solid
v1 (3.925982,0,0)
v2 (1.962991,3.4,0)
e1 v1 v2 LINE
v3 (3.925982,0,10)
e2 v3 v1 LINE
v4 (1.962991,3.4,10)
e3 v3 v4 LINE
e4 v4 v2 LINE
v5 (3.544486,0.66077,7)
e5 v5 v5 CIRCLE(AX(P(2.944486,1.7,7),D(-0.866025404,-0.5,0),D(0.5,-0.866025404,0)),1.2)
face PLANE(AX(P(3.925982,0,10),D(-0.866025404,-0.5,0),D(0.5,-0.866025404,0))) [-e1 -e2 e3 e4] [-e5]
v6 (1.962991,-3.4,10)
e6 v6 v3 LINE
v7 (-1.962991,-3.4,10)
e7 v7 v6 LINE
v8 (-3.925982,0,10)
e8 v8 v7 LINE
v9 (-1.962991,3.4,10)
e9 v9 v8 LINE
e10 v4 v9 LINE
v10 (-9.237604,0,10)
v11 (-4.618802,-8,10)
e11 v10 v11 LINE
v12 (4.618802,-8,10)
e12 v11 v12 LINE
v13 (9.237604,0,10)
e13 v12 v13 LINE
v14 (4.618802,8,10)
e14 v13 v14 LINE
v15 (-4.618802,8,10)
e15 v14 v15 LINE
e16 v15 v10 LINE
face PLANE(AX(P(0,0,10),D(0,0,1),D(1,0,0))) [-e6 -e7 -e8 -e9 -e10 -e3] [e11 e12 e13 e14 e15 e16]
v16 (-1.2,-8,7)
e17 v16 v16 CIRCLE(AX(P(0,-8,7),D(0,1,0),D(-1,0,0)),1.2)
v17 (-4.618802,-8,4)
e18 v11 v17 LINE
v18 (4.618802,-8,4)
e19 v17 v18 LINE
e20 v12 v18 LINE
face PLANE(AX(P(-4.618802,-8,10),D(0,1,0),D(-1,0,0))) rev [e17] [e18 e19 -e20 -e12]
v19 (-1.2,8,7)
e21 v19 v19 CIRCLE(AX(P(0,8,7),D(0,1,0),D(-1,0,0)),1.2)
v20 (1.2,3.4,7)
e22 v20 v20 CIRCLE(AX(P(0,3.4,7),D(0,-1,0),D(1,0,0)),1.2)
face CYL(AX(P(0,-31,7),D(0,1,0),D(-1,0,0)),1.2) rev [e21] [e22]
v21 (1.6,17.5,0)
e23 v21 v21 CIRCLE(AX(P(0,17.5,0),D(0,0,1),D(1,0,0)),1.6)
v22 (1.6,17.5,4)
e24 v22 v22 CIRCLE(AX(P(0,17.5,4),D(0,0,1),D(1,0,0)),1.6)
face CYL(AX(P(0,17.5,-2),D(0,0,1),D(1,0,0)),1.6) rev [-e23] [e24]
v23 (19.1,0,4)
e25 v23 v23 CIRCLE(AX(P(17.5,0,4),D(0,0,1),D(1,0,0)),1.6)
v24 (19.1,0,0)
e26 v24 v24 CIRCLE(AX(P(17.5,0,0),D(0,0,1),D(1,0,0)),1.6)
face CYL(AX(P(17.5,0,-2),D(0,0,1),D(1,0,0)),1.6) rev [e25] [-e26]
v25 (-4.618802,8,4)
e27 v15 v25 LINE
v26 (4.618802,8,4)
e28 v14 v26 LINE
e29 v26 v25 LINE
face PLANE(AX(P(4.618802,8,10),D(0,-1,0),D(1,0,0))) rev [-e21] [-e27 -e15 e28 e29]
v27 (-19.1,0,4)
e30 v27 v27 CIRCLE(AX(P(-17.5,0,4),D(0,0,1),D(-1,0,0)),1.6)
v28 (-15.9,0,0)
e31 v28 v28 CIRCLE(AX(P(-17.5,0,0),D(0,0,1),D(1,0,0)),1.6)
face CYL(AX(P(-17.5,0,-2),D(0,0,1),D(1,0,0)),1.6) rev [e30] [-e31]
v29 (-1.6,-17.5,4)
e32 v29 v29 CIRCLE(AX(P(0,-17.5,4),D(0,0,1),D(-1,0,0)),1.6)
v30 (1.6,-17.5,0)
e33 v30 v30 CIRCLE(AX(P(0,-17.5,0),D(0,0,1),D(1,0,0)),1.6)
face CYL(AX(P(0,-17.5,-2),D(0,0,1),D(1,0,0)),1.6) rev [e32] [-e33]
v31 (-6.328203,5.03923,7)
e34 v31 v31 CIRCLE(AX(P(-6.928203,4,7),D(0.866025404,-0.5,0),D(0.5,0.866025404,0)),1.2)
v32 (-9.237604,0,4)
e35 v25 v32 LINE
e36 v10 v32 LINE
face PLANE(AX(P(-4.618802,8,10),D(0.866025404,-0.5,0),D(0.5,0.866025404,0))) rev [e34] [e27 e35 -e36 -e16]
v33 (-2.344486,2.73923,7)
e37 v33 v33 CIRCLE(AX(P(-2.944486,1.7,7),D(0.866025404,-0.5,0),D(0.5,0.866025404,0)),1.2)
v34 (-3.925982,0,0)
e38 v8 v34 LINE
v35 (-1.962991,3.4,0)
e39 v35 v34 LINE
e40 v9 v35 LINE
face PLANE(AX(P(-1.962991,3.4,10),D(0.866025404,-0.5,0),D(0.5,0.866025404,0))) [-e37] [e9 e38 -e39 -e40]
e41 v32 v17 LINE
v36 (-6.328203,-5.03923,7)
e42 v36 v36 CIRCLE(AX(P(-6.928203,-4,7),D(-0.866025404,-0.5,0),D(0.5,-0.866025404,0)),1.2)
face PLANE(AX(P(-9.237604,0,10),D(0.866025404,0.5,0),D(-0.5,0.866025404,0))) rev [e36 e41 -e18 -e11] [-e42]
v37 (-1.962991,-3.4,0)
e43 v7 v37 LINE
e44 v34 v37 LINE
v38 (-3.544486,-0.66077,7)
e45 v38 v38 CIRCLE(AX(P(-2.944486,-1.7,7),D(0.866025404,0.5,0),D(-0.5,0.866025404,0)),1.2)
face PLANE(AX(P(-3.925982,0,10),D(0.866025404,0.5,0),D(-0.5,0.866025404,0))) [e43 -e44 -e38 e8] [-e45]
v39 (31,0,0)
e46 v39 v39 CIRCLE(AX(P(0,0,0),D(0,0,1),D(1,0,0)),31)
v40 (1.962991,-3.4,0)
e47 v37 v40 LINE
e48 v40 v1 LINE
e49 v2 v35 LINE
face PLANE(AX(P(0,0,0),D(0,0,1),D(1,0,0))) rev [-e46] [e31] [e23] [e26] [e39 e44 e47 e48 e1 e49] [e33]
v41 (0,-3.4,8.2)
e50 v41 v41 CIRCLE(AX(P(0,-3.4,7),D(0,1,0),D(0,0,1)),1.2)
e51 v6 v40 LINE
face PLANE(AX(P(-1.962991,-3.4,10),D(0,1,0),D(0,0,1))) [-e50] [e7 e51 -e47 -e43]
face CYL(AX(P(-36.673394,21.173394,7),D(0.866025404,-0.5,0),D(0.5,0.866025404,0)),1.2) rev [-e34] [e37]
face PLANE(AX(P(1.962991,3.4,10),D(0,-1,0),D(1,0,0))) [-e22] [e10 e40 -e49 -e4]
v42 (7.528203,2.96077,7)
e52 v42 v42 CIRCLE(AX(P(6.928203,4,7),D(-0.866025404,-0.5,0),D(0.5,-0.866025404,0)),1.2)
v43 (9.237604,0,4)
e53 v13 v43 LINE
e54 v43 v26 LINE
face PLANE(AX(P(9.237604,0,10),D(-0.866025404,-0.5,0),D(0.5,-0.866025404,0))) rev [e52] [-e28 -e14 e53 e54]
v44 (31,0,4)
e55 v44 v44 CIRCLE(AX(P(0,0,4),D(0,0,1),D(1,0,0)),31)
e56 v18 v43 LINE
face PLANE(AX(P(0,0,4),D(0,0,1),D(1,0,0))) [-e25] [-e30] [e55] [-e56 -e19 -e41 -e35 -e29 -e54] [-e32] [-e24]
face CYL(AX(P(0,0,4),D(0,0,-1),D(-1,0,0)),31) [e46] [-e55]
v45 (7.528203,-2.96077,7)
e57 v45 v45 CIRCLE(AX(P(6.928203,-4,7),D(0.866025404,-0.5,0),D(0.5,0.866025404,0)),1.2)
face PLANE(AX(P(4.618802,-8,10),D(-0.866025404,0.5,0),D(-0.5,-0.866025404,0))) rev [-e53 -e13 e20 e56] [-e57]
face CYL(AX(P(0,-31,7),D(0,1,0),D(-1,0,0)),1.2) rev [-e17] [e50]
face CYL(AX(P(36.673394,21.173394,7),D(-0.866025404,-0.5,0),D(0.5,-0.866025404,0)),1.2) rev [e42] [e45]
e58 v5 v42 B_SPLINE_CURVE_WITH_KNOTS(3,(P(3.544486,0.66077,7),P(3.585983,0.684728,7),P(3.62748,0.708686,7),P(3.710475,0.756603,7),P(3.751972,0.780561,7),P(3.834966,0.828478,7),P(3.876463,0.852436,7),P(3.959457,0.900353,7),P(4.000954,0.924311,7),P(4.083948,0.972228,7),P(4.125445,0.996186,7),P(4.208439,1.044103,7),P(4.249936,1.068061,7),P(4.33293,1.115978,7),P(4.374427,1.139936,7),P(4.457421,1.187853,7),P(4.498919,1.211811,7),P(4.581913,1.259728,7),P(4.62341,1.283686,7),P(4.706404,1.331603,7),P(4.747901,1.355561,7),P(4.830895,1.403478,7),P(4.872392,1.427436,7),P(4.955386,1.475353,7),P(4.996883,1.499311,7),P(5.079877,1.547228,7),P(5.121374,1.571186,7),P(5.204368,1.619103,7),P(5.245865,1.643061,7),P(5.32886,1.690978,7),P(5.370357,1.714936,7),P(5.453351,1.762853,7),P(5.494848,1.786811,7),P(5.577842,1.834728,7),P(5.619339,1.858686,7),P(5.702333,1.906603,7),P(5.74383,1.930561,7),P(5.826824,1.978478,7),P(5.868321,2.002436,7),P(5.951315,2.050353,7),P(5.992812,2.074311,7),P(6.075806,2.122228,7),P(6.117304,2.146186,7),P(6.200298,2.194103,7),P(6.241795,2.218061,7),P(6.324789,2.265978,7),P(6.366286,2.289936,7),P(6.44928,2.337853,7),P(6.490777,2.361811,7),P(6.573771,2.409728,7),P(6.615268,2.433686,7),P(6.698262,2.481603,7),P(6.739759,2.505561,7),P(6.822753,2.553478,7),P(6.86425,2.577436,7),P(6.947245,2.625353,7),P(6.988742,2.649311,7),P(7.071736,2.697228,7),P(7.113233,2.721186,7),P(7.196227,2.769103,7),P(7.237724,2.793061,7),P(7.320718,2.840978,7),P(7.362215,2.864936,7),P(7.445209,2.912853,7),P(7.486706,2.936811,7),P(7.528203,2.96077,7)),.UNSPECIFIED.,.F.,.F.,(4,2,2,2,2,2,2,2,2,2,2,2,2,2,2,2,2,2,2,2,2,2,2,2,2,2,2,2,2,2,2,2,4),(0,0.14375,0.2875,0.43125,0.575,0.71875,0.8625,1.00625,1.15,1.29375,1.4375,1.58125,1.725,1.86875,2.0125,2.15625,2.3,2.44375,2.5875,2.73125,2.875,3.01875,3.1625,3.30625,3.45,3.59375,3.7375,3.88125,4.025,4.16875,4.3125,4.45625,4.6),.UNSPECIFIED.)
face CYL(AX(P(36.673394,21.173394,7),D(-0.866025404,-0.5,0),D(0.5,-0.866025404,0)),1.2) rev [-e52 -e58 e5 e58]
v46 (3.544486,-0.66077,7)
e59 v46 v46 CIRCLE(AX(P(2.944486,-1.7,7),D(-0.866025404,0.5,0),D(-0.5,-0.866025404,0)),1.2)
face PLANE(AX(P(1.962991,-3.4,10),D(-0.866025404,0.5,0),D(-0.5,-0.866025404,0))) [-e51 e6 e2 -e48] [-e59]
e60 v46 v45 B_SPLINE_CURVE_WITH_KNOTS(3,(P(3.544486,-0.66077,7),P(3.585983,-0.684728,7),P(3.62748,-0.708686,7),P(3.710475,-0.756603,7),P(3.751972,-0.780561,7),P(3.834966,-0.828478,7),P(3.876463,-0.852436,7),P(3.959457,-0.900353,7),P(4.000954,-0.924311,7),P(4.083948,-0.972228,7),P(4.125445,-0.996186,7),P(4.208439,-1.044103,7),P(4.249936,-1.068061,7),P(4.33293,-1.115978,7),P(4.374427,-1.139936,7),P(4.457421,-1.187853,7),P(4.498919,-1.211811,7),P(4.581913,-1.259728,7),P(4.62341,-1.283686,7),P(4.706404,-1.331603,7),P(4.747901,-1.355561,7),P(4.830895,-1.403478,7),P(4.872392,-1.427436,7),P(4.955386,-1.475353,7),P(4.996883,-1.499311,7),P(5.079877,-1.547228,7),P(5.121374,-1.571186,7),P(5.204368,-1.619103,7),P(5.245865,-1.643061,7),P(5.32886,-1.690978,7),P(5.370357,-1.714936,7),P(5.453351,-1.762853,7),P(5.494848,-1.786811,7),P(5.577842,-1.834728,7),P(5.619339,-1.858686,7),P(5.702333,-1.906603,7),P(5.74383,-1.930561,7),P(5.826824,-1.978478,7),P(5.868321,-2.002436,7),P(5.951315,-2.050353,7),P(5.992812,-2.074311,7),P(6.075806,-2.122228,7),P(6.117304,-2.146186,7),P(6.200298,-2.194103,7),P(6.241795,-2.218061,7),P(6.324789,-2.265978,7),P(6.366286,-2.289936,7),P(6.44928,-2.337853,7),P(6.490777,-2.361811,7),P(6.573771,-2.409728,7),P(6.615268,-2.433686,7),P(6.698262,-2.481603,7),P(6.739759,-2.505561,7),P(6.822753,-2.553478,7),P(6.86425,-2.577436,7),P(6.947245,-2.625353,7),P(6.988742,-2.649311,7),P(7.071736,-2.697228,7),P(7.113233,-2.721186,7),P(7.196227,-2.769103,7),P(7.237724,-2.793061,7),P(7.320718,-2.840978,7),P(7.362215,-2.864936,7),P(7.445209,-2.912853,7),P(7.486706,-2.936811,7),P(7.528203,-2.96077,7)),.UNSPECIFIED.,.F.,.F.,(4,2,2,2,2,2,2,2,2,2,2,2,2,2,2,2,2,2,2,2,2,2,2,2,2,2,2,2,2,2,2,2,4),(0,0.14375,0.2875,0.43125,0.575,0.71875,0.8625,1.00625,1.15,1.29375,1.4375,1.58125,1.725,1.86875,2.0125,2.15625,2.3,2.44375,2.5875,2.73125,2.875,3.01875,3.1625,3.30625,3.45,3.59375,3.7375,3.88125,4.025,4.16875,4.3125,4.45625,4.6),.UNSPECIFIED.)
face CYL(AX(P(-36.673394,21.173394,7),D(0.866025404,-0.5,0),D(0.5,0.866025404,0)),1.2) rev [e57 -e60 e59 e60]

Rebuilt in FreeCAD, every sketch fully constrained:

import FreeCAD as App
import Part
import Sketcher

V = App.Vector
Q = App.Units.Quantity

doc = App.newDocument("Part")
body = doc.addObject("PartDesign::Body", "Body")

sketch1 = body.newObject("Sketcher::SketchObject", "Sketch")
sketch1.AttachmentSupport = (doc.getObject("XY_Plane"), [""])
sketch1.MapMode = "FlatFace"
sketch1.addGeometry(Part.Circle(V(0, 0, 0), V(0, 0, 1), 31), False)
sketch1.addConstraint([
    Sketcher.Constraint("Coincident", 0, 3, -1, 1),
    Sketcher.Constraint("Diameter", 0, 62.0),
])
pad1 = body.newObject("PartDesign::Pad", "Pad")
pad1.Profile = sketch1
pad1.Length = 4

sketch2 = body.newObject("Sketcher::SketchObject", "Sketch001")
sketch2.AttachmentSupport = (doc.getObject("XY_Plane"), [""])
sketch2.MapMode = "FlatFace"
sketch2.AttachmentOffset = App.Placement(V(0, 0, 4), App.Rotation())
sketch2.addGeometry([
    Part.LineSegment(V(4.6, 8, 0), V(-4.6, 8, 0)),
    Part.LineSegment(V(-4.6, 8, 0), V(-9.2, 0, 0)),
    Part.LineSegment(V(-9.2, 0, 0), V(-4.6, -8, 0)),
    Part.LineSegment(V(-4.6, -8, 0), V(4.6, -8, 0)),
    Part.LineSegment(V(4.6, -8, 0), V(9.2, 0, 0)),
    Part.LineSegment(V(9.2, 0, 0), V(4.6, 8, 0)),
    Part.LineSegment(V(-2, 3.4, 0), V(2, 3.4, 0)),
    Part.LineSegment(V(2, 3.4, 0), V(3.9, 0, 0)),
    Part.LineSegment(V(3.9, 0, 0), V(2, -3.4, 0)),
    Part.LineSegment(V(2, -3.4, 0), V(-2, -3.4, 0)),
    Part.LineSegment(V(-2, -3.4, 0), V(-3.9, 0, 0)),
    Part.LineSegment(V(-3.9, 0, 0), V(-2, 3.4, 0)),
], False)
sketch2.addConstraint([
    Sketcher.Constraint("Coincident", 0, 2, 1, 1),
    Sketcher.Constraint("Coincident", 1, 2, 2, 1),
    Sketcher.Constraint("Coincident", 2, 2, 3, 1),
    Sketcher.Constraint("Coincident", 3, 2, 4, 1),
    Sketcher.Constraint("Coincident", 4, 2, 5, 1),
    Sketcher.Constraint("Coincident", 5, 2, 0, 1),
    Sketcher.Constraint("Coincident", 6, 2, 7, 1),
    Sketcher.Constraint("Coincident", 7, 2, 8, 1),
    Sketcher.Constraint("Coincident", 8, 2, 9, 1),
    Sketcher.Constraint("Coincident", 9, 2, 10, 1),
    Sketcher.Constraint("Coincident", 10, 2, 11, 1),
    Sketcher.Constraint("Coincident", 11, 2, 6, 1),
    Sketcher.Constraint("Horizontal", 0),
    Sketcher.Constraint("Horizontal", 3),
    Sketcher.Constraint("Horizontal", 6),
    Sketcher.Constraint("Horizontal", 9),
    Sketcher.Constraint("Symmetric", 0, 2, 3, 2, -1, 1),
    Sketcher.Constraint("Symmetric", 1, 2, 4, 2, -1, 1),
    Sketcher.Constraint("Symmetric", 6, 2, 9, 2, -1, 1),
    Sketcher.Constraint("Symmetric", 7, 2, 10, 2, -1, 1),
    Sketcher.Constraint("PointOnObject", 1, 2, -1),
    Sketcher.Constraint("PointOnObject", 7, 2, -1),
    Sketcher.Constraint("Parallel", 2, 5),
    Sketcher.Constraint("Parallel", 5, 7),
    Sketcher.Constraint("Parallel", 4, 8),
    Sketcher.Constraint("Parallel", 8, 11),
    Sketcher.Constraint("Vertical", 0, 2, 2, 2),
    Sketcher.Constraint("Angle", 1, Q("-120 deg")),
    Sketcher.Constraint("DistanceY", -1, 1, 0, 2, 8.0),
    Sketcher.Constraint("DistanceY", -1, 1, 6, 2, 3.4),
    Sketcher.Constraint("DistanceX", 6, 1, 6, 2, 3.925982),
    Sketcher.Constraint("DistanceX", 0, 2, 0, 1, 9.237604),
])
pad2 = body.newObject("PartDesign::Pad", "Pad001")
pad2.Profile = sketch2
pad2.Length = 6

sketch3 = body.newObject("Sketcher::SketchObject", "Sketch002")
sketch3.AttachmentSupport = (doc.getObject("XZ_Plane"), [""])
sketch3.MapMode = "FlatFace"
sketch3.AttachmentOffset = App.Placement(V(0, 0, -8), App.Rotation())
sketch3.addGeometry(Part.Circle(V(0, 7, 0), V(0, 0, 1), 1.2), False)
sketch3.addConstraint([
    Sketcher.Constraint("PointOnObject", 0, 3, -2),
    Sketcher.Constraint("Diameter", 0, 2.4),
    Sketcher.Constraint("DistanceY", -1, 1, 0, 3, 7.0),
])
pocket1 = body.newObject("PartDesign::Pocket", "Pocket")
pocket1.Profile = sketch3
pocket1.Type = "ThroughAll"
pocket1.Reversed = True
doc.recompute()

polarpattern = body.newObject("PartDesign::PolarPattern", "PolarPattern")
polarpattern.Originals = [pocket1]
polarpattern.Axis = (doc.getObject("Z_Axis"), [""])
polarpattern.Angle = 360
polarpattern.Occurrences = 3
body.Tip = polarpattern

sketch4 = body.newObject("Sketcher::SketchObject", "Sketch003")
sketch4.AttachmentSupport = (doc.getObject("XY_Plane"), [""])
sketch4.MapMode = "FlatFace"
sketch4.AttachmentOffset = App.Placement(V(0, 0, 4), App.Rotation())
sketch4.addGeometry([
    Part.Circle(V(0, 17.5, 0), V(0, 0, 1), 1.6),
    Part.Circle(V(17.5, 0, 0), V(0, 0, 1), 1.6),
    Part.Circle(V(0, -17.5, 0), V(0, 0, 1), 1.6),
    Part.Circle(V(-17.5, 0, 0), V(0, 0, 1), 1.6),
], False)
sketch4.addConstraint([
    Sketcher.Constraint("Equal", 0, 1),
    Sketcher.Constraint("Equal", 1, 2),
    Sketcher.Constraint("Equal", 2, 3),
    Sketcher.Constraint("Symmetric", 0, 3, 2, 3, -1, 1),
    Sketcher.Constraint("Symmetric", 1, 3, 3, 3, -1, 1),
    Sketcher.Constraint("PointOnObject", 0, 3, -2),
    Sketcher.Constraint("PointOnObject", 1, 3, -1),
    Sketcher.Constraint("Diameter", 0, 3.2),
    Sketcher.Constraint("DistanceY", 2, 3, 0, 3, 35.0),
    Sketcher.Constraint("DistanceX", 3, 3, 1, 3, 35.0),
])
pocket2 = body.newObject("PartDesign::Pocket", "Pocket001")
pocket2.Profile = sketch4
pocket2.Length = 6

sketch5 = body.newObject("Sketcher::SketchObject", "Sketch004")
sketch5.AttachmentSupport = (doc.getObject("XY_Plane"), [""])
sketch5.MapMode = "FlatFace"
sketch5.AttachmentOffset = App.Placement(V(0, 0, 4), App.Rotation())
sketch5.addGeometry([
    Part.LineSegment(V(3.9, 0, 0), V(2, 3.4, 0)),
    Part.LineSegment(V(2, 3.4, 0), V(-2, 3.4, 0)),
    Part.LineSegment(V(-2, 3.4, 0), V(-3.9, 0, 0)),
    Part.LineSegment(V(-3.9, 0, 0), V(-2, -3.4, 0)),
    Part.LineSegment(V(-2, -3.4, 0), V(2, -3.4, 0)),
    Part.LineSegment(V(2, -3.4, 0), V(3.9, 0, 0)),
], False)
sketch5.addConstraint([
    Sketcher.Constraint("Coincident", 0, 2, 1, 1),
    Sketcher.Constraint("Coincident", 1, 2, 2, 1),
    Sketcher.Constraint("Coincident", 2, 2, 3, 1),
    Sketcher.Constraint("Coincident", 3, 2, 4, 1),
    Sketcher.Constraint("Coincident", 4, 2, 5, 1),
    Sketcher.Constraint("Coincident", 5, 2, 0, 1),
    Sketcher.Constraint("Horizontal", 1),
    Sketcher.Constraint("Horizontal", 4),
    Sketcher.Constraint("Symmetric", 0, 2, 3, 2, -1, 1),
    Sketcher.Constraint("Symmetric", 2, 2, 5, 2, -1, 1),
    Sketcher.Constraint("PointOnObject", 2, 2, -1),
    Sketcher.Constraint("Parallel", 2, 5),
    Sketcher.Constraint("Vertical", 1, 2, 3, 2),
    Sketcher.Constraint("Angle", 0, Q("120 deg")),
    Sketcher.Constraint("DistanceY", -1, 1, 0, 2, 3.4),
    Sketcher.Constraint("DistanceX", 1, 2, 1, 1, 3.925982),
])
pocket3 = body.newObject("PartDesign::Pocket", "Pocket002")
pocket3.Profile = sketch5
pocket3.Type = "ThroughAll"

doc.recompute()
